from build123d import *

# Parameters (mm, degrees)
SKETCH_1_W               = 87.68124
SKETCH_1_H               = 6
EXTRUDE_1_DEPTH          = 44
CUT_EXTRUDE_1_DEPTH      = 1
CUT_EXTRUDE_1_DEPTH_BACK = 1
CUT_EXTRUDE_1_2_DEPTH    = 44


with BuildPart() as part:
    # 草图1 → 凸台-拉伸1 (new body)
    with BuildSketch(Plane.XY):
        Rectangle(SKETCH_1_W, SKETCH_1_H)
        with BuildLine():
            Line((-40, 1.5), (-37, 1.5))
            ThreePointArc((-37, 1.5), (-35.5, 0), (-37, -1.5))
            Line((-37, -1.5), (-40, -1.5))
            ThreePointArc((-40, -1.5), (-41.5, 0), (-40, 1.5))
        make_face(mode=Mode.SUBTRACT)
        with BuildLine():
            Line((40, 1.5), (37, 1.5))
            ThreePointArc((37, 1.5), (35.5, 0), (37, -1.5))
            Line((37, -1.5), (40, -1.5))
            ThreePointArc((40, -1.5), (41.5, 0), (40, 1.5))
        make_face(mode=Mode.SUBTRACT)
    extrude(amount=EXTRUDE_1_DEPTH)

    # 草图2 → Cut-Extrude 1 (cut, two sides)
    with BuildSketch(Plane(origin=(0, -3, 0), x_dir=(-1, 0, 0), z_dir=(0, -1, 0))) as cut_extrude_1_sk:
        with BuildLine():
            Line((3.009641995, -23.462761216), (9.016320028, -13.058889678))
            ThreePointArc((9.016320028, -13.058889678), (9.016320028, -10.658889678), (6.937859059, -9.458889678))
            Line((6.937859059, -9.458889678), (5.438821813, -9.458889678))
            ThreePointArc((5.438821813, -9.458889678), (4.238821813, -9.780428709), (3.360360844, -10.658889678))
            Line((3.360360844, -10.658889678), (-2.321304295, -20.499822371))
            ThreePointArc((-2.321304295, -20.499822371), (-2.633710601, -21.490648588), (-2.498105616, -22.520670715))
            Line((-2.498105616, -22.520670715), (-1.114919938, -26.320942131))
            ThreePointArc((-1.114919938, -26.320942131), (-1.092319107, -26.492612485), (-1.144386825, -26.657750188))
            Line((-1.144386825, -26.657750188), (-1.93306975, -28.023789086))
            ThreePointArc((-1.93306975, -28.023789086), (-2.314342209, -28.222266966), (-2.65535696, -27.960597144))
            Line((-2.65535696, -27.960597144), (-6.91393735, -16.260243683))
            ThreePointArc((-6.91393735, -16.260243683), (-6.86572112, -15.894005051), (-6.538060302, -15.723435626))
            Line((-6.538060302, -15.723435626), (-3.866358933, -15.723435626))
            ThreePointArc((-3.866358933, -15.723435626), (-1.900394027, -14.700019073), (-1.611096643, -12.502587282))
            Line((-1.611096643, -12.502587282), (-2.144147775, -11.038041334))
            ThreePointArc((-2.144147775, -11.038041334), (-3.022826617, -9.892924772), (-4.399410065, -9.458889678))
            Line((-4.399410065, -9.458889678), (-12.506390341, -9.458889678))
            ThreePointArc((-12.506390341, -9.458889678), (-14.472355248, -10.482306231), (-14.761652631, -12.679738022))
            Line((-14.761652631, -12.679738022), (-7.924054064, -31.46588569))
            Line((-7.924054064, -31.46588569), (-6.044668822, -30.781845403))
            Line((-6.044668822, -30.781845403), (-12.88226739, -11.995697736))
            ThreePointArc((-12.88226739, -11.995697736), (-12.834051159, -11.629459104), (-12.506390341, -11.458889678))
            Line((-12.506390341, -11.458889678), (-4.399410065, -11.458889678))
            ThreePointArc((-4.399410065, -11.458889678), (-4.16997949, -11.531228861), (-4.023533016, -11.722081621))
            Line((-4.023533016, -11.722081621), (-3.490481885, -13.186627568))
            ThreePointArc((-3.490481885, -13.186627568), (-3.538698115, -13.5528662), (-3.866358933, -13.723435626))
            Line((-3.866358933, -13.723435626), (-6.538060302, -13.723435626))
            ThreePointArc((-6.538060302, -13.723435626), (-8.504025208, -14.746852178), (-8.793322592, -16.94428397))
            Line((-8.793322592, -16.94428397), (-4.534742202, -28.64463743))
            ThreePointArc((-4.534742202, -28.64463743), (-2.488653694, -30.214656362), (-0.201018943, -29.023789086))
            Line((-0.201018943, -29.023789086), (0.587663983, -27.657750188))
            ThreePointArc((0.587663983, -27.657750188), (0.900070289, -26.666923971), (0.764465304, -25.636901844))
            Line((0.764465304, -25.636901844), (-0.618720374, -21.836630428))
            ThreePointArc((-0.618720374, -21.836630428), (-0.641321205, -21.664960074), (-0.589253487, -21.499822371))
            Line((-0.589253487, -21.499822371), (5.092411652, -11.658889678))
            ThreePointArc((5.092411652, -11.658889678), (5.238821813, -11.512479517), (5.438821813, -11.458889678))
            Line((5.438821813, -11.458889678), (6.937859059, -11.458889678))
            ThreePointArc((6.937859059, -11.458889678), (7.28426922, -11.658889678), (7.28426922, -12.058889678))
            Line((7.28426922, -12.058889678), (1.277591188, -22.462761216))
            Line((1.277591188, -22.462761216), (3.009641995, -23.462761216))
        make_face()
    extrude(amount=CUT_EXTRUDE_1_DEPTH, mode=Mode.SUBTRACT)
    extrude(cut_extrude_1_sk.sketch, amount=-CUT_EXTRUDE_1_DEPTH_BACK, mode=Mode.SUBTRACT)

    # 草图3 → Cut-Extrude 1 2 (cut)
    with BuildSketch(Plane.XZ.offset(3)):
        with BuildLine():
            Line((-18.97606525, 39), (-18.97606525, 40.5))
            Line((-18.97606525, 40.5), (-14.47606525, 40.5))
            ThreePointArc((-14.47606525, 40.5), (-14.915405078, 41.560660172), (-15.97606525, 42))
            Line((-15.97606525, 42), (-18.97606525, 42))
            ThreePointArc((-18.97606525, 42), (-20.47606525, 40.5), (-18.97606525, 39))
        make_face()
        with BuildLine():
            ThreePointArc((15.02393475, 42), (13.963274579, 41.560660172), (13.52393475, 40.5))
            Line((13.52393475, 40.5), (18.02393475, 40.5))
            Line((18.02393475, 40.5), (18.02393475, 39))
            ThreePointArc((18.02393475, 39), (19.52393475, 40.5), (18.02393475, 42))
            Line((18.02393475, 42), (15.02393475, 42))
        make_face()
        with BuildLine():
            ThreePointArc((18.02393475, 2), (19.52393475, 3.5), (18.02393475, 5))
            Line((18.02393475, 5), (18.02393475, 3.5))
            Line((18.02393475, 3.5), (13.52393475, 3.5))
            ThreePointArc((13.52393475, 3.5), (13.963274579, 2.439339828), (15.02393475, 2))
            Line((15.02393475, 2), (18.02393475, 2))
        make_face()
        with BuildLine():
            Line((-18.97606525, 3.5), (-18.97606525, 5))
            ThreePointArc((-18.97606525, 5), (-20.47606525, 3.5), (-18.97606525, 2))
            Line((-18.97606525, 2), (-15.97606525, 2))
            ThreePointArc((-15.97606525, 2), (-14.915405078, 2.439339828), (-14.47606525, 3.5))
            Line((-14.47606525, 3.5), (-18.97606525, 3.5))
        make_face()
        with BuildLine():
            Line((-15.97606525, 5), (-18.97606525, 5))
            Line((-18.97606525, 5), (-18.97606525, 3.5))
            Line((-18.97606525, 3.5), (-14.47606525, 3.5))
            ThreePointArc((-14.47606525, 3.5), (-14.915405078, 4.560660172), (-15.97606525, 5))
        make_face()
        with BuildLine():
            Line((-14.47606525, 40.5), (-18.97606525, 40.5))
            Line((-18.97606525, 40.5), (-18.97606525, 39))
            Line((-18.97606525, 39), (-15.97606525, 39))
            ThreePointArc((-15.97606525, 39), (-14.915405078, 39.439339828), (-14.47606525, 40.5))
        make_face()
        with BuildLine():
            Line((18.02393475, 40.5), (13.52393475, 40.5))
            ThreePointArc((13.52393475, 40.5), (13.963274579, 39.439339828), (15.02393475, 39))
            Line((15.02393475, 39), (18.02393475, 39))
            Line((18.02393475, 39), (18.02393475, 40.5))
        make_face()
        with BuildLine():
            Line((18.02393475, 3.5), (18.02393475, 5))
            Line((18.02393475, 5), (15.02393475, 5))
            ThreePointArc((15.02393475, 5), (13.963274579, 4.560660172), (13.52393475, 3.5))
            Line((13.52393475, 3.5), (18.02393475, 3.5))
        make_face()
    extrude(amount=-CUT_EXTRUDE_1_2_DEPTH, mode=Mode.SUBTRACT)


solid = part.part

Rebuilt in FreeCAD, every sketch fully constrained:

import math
import FreeCAD as App
import Part
import Sketcher
Q = App.Units.Quantity


def add_polygon(sketch, points):
    """Adds a closed chain of lines whose ends are joined by coincident constraints."""
    first, n = sketch.GeometryCount, len(points)
    for a, b in zip(points, points[1:] + points[:1]):
        sketch.addGeometry(Part.LineSegment(App.Vector(*a, 0), App.Vector(*b, 0)), False)
    for i in range(n):
        sketch.addConstraint(Sketcher.Constraint("Coincident", first + i, 2, first + (i + 1) % n, 1))

doc = App.newDocument("Part")
body = doc.addObject("PartDesign::Body", "Body")

# Sketch on XY plane
sketch1 = body.newObject("Sketcher::SketchObject", "Sketch")
sketch1.AttachmentSupport = (doc.getObject("XY_Plane"), [""])
sketch1.MapMode = "FlatFace"
add_polygon(sketch1, [(-43.84062, 3), (-43.84062, -3), (43.84062, -3), (43.84062, 3)])  # lines 0-3
sketch1.addGeometry(Part.ArcOfCircle(Part.Circle(App.Vector(-40, 0, 0), App.Vector(0, 0, 1), 1.5), math.radians(90), math.radians(270)), False)  # 4
sketch1.addGeometry(Part.LineSegment(App.Vector(-40, 1.5, 0), App.Vector(-37, 1.5, 0)), False)  # 5
sketch1.addGeometry(Part.ArcOfCircle(Part.Circle(App.Vector(-37, 0, 0), App.Vector(0, 0, 1), 1.5), math.radians(-90), math.radians(90)), False)  # 6
sketch1.addGeometry(Part.LineSegment(App.Vector(-37, -1.5, 0), App.Vector(-40, -1.5, 0)), False)  # 7
sketch1.addGeometry(Part.LineSegment(App.Vector(37, 1.5, 0), App.Vector(40, 1.5, 0)), False)  # 8
sketch1.addGeometry(Part.ArcOfCircle(Part.Circle(App.Vector(40, 0, 0), App.Vector(0, 0, 1), 1.5), math.radians(-90), math.radians(90)), False)  # 9
sketch1.addGeometry(Part.LineSegment(App.Vector(40, -1.5, 0), App.Vector(37, -1.5, 0)), False)  # 10
sketch1.addGeometry(Part.ArcOfCircle(Part.Circle(App.Vector(37, 0, 0), App.Vector(0, 0, 1), 1.5), math.radians(90), math.radians(270)), False)  # 11
sketch1.addConstraint([
    Sketcher.Constraint("Tangent", 4, 1, 5, 1),
    Sketcher.Constraint("Tangent", 5, 2, 6, 2),
    Sketcher.Constraint("Tangent", 6, 1, 7, 1),
    Sketcher.Constraint("Tangent", 7, 2, 4, 2),
    Sketcher.Constraint("Tangent", 8, 2, 9, 2),
    Sketcher.Constraint("Tangent", 9, 1, 10, 1),
    Sketcher.Constraint("Tangent", 10, 2, 11, 2),
    Sketcher.Constraint("Tangent", 11, 1, 8, 1),
    Sketcher.Constraint("Vertical", 0),
    Sketcher.Constraint("Horizontal", 1),
    Sketcher.Constraint("Vertical", 2),
    Sketcher.Constraint("Horizontal", 3),
    Sketcher.Constraint("Horizontal", 5),
    Sketcher.Constraint("Horizontal", 7),
    Sketcher.Constraint("Horizontal", 8),
    Sketcher.Constraint("Horizontal", 10),
    Sketcher.Constraint("Equal", 6, 9),
    Sketcher.Constraint("Symmetric", 4, 3, 9, 3, -1, 1),
    Sketcher.Constraint("Symmetric", 0, 2, 2, 2, -1, 1),
    Sketcher.Constraint("Symmetric", 6, 3, 11, 3, -2),
    Sketcher.Constraint("Radius", 4, Q("1.5 mm")),
    Sketcher.Constraint("DistanceX", 5, 1, 5, 2, Q("3 mm")),
    Sketcher.Constraint("DistanceY", 0, 2, 0, 1, Q("6 mm")),
    Sketcher.Constraint("DistanceX", 4, 3, -1, 1, Q("40 mm")),
    Sketcher.Constraint("DistanceX", 1, 1, 1, 2, Q("87.68124 mm")),
])
pad1 = body.newObject("PartDesign::Pad", "Pad")
pad1.Profile = sketch1
pad1.Length = 44

# Sketch on XZ plane
sketch2 = body.newObject("Sketcher::SketchObject", "Sketch001")
sketch2.AttachmentSupport = (doc.getObject("XZ_Plane"), [""])
sketch2.MapMode = "FlatFace"
sketch2.AttachmentOffset = App.Placement(App.Vector(0, 0, 3), App.Rotation())
sketch2.addGeometry([
    Part.LineSegment(App.Vector(-3.009642, 23.462761, 0), App.Vector(-9.01632, 13.05889, 0)),  # 0
    Part.ArcOfCircle(Part.Circle(App.Vector(-6.937859, 11.85889, 0), App.Vector(0, 0, 1), 2.4), math.radians(150), math.radians(270)),  # 1
    Part.LineSegment(App.Vector(-6.937859, 9.45889, 0), App.Vector(-5.438822, 9.45889, 0)),  # 2
    Part.ArcOfCircle(Part.Circle(App.Vector(-5.438822, 11.85889, 0), App.Vector(0, 0, 1), 2.4), math.radians(-90), math.radians(-30)),  # 3
    Part.LineSegment(App.Vector(-3.360361, 10.65889, 0), App.Vector(2.321304, 20.499822, 0)),  # 4
    Part.ArcOfCircle(Part.Circle(App.Vector(0.242843, 21.699822, 0), App.Vector(0, 0, 1), 2.4), math.radians(-30), math.radians(20)),  # 5
    Part.LineSegment(App.Vector(2.498106, 22.520671, 0), App.Vector(1.11492, 26.320942, 0)),  # 6
    Part.ArcOfCircle(Part.Circle(App.Vector(1.490797, 26.45775, 0), App.Vector(0, 0, 1), 0.4), math.radians(150), math.radians(200)),  # 7
    Part.LineSegment(App.Vector(1.144387, 26.65775, 0), App.Vector(1.93307, 28.023789, 0)),  # 8
    Part.ArcOfCircle(Part.Circle(App.Vector(2.27948, 27.823789, 0), App.Vector(0, 0, 1), 0.4), math.radians(20), math.radians(150)),  # 9
    Part.LineSegment(App.Vector(2.655357, 27.960597, 0), App.Vector(6.913937, 16.260244, 0)),  # 10
    Part.ArcOfCircle(Part.Circle(App.Vector(6.53806, 16.123436, 0), App.Vector(0, 0, 1), 0.4), math.radians(-90), math.radians(20)),  # 11
    Part.LineSegment(App.Vector(6.53806, 15.723436, 0), App.Vector(3.866359, 15.723436, 0)),  # 12
    Part.ArcOfCircle(Part.Circle(App.Vector(3.866359, 13.323436, 0), App.Vector(0, 0, 1), 2.4), math.radians(90), math.radians(200)),  # 13
    Part.LineSegment(App.Vector(1.611097, 12.502587, 0), App.Vector(2.144148, 11.038041, 0)),  # 14
    Part.ArcOfCircle(Part.Circle(App.Vector(4.39941, 11.85889, 0), App.Vector(0, 0, 1), 2.4), math.radians(-160), math.radians(-90)),  # 15
    Part.LineSegment(App.Vector(4.39941, 9.45889, 0), App.Vector(12.50639, 9.45889, 0)),  # 16
    Part.ArcOfCircle(Part.Circle(App.Vector(12.50639, 11.85889, 0), App.Vector(0, 0, 1), 2.4), math.radians(-90), math.radians(20)),  # 17
    Part.LineSegment(App.Vector(14.761653, 12.679738, 0), App.Vector(7.924054, 31.465886, 0)),  # 18
    Part.LineSegment(App.Vector(7.924054, 31.465886, 0), App.Vector(6.044669, 30.781845, 0)),  # 19
    Part.LineSegment(App.Vector(6.044669, 30.781845, 0), App.Vector(12.882267, 11.995698, 0)),  # 20
    Part.ArcOfCircle(Part.Circle(App.Vector(12.50639, 11.85889, 0), App.Vector(0, 0, 1), 0.4), math.radians(-90), math.radians(20)),  # 21
    Part.LineSegment(App.Vector(12.50639, 11.45889, 0), App.Vector(4.39941, 11.45889, 0)),  # 22
    Part.ArcOfCircle(Part.Circle(App.Vector(4.39941, 11.85889, 0), App.Vector(0, 0, 1), 0.4), math.radians(-160), math.radians(-90)),  # 23
    Part.LineSegment(App.Vector(4.023533, 11.722082, 0), App.Vector(3.490482, 13.186628, 0)),  # 24
    Part.ArcOfCircle(Part.Circle(App.Vector(3.866359, 13.323436, 0), App.Vector(0, 0, 1), 0.4), math.radians(90), math.radians(200)),  # 25
    Part.LineSegment(App.Vector(3.866359, 13.723436, 0), App.Vector(6.53806, 13.723436, 0)),  # 26
    Part.ArcOfCircle(Part.Circle(App.Vector(6.53806, 16.123436, 0), App.Vector(0, 0, 1), 2.4), math.radians(-90), math.radians(20)),  # 27
    Part.LineSegment(App.Vector(8.793323, 16.944284, 0), App.Vector(4.534742, 28.644637, 0)),  # 28
    Part.ArcOfCircle(Part.Circle(App.Vector(2.27948, 27.823789, 0), App.Vector(0, 0, 1), 2.4), math.radians(20), math.radians(150)),  # 29
    Part.LineSegment(App.Vector(0.201019, 29.023789, 0), App.Vector(-0.587664, 27.65775, 0)),  # 30
    Part.ArcOfCircle(Part.Circle(App.Vector(1.490797, 26.45775, 0), App.Vector(0, 0, 1), 2.4), math.radians(150), math.radians(200)),  # 31
    Part.LineSegment(App.Vector(-0.764465, 25.636902, 0), App.Vector(0.61872, 21.83663, 0)),  # 32
    Part.ArcOfCircle(Part.Circle(App.Vector(0.242843, 21.699822, 0), App.Vector(0, 0, 1), 0.4), math.radians(-30), math.radians(20)),  # 33
    Part.LineSegment(App.Vector(0.589253, 21.499822, 0), App.Vector(-5.092412, 11.65889, 0)),  # 34
    Part.ArcOfCircle(Part.Circle(App.Vector(-5.438822, 11.85889, 0), App.Vector(0, 0, 1), 0.4), math.radians(-90), math.radians(-30)),  # 35
    Part.LineSegment(App.Vector(-5.438822, 11.45889, 0), App.Vector(-6.937859, 11.45889, 0)),  # 36
    Part.ArcOfCircle(Part.Circle(App.Vector(-6.937859, 11.85889, 0), App.Vector(0, 0, 1), 0.4), math.radians(150), math.radians(270)),  # 37
    Part.LineSegment(App.Vector(-7.284269, 12.05889, 0), App.Vector(-1.277591, 22.462761, 0)),  # 38
    Part.LineSegment(App.Vector(-1.277591, 22.462761, 0), App.Vector(-3.009642, 23.462761, 0)),  # 39
], False)
sketch2.addConstraint([
    Sketcher.Constraint("Tangent", 0, 2, 1, 1),
    Sketcher.Constraint("Tangent", 1, 2, 2, 1),
    Sketcher.Constraint("Tangent", 2, 2, 3, 1),
    Sketcher.Constraint("Tangent", 3, 2, 4, 1),
    Sketcher.Constraint("Tangent", 4, 2, 5, 1),
    Sketcher.Constraint("Tangent", 5, 2, 6, 1),
    Sketcher.Constraint("Tangent", 6, 2, 7, 2),
    Sketcher.Constraint("Tangent", 7, 1, 8, 1),
    Sketcher.Constraint("Tangent", 8, 2, 9, 2),
    Sketcher.Constraint("Tangent", 9, 1, 10, 1),
    Sketcher.Constraint("Tangent", 10, 2, 11, 2),
    Sketcher.Constraint("Tangent", 11, 1, 12, 1),
    Sketcher.Constraint("Tangent", 12, 2, 13, 1),
    Sketcher.Constraint("Tangent", 13, 2, 14, 1),
    Sketcher.Constraint("Tangent", 14, 2, 15, 1),
    Sketcher.Constraint("Tangent", 15, 2, 16, 1),
    Sketcher.Constraint("Tangent", 16, 2, 17, 1),
    Sketcher.Constraint("Tangent", 17, 2, 18, 1),
    Sketcher.Constraint("Coincident", 18, 2, 19, 1),
    Sketcher.Constraint("Coincident", 19, 2, 20, 1),
    Sketcher.Constraint("Tangent", 20, 2, 21, 2),
    Sketcher.Constraint("Tangent", 21, 1, 22, 1),
    Sketcher.Constraint("Tangent", 22, 2, 23, 2),
    Sketcher.Constraint("Tangent", 23, 1, 24, 1),
    Sketcher.Constraint("Tangent", 24, 2, 25, 2),
    Sketcher.Constraint("Tangent", 25, 1, 26, 1),
    Sketcher.Constraint("Tangent", 26, 2, 27, 1),
    Sketcher.Constraint("Tangent", 27, 2, 28, 1),
    Sketcher.Constraint("Tangent", 28, 2, 29, 1),
    Sketcher.Constraint("Tangent", 29, 2, 30, 1),
    Sketcher.Constraint("Tangent", 30, 2, 31, 1),
    Sketcher.Constraint("Tangent", 31, 2, 32, 1),
    Sketcher.Constraint("Tangent", 32, 2, 33, 2),
    Sketcher.Constraint("Tangent", 33, 1, 34, 1),
    Sketcher.Constraint("Tangent", 34, 2, 35, 2),
    Sketcher.Constraint("Tangent", 35, 1, 36, 1),
    Sketcher.Constraint("Tangent", 36, 2, 37, 2),
    Sketcher.Constraint("Tangent", 37, 1, 38, 1),
    Sketcher.Constraint("Coincident", 38, 2, 39, 1),
    Sketcher.Constraint("Coincident", 39, 2, 0, 1),
    Sketcher.Constraint("Horizontal", 2),
    Sketcher.Constraint("Horizontal", 12),
    Sketcher.Constraint("Horizontal", 16),
    Sketcher.Constraint("Horizontal", 22),
    Sketcher.Constraint("Horizontal", 26),
    Sketcher.Constraint("Horizontal", 36),
    Sketcher.Constraint("Coincident", 21, 3, 17, 3),
    Sketcher.Constraint("Coincident", 23, 3, 15, 3),
    Sketcher.Constraint("Coincident", 25, 3, 13, 3),
    Sketcher.Constraint("Coincident", 27, 3, 11, 3),
    Sketcher.Constraint("Coincident", 29, 3, 9, 3),
    Sketcher.Constraint("Coincident", 31, 3, 7, 3),
    Sketcher.Constraint("Coincident", 33, 3, 5, 3),
    Sketcher.Constraint("Coincident", 35, 3, 3, 3),
    Sketcher.Constraint("Coincident", 37, 3, 1, 3),
    Sketcher.Constraint("Equal", 1, 3),
    Sketcher.Constraint("Equal", 3, 5),
    Sketcher.Constraint("Equal", 7, 9),
    Sketcher.Constraint("Equal", 9, 11),
    Sketcher.Constraint("Equal", 5, 13),
    Sketcher.Constraint("Equal", 13, 15),
    Sketcher.Constraint("Equal", 15, 17),
    Sketcher.Constraint("Equal", 11, 21),
    Sketcher.Constraint("Equal", 23, 25),
    Sketcher.Constraint("Equal", 27, 29),
    Sketcher.Constraint("Equal", 29, 31),
    Sketcher.Constraint("Equal", 25, 33),
    Sketcher.Constraint("Equal", 33, 35),
    Sketcher.Constraint("Parallel", 0, 4),
    Sketcher.Constraint("Parallel", 4, 8),
    Sketcher.Constraint("Parallel", 6, 10),
    Sketcher.Constraint("Parallel", 10, 14),
    Sketcher.Constraint("Parallel", 14, 18),
    Sketcher.Constraint("Perpendicular", 18, 19),
    Sketcher.Constraint("Perpendicular", 19, 20),
    Sketcher.Constraint("Parallel", 34, 38),
    Sketcher.Constraint("Perpendicular", 38, 39),
    Sketcher.Constraint("Horizontal", 3, 3, 15, 3),
    Sketcher.Constraint("Radius", 1, Q("2.4 mm")),
    Sketcher.Constraint("Radius", 7, Q("0.4 mm")),
    Sketcher.Constraint("Angle", 0, Q("-120 deg")),
    Sketcher.Constraint("Angle", 6, Q("110 deg")),
    Sketcher.Constraint("DistanceX", 12, 2, 12, 1, Q("2.671701 mm")),
    Sketcher.Constraint("Distance", 18, Q("19.991801 mm")),
    Sketcher.Constraint("DistanceX", 16, 1, 16, 2, Q("8.10698 mm")),
    Sketcher.Constraint("DistanceY", -1, 1, 31, 2, Q("25.636902 mm")),
    Sketcher.Constraint("DistanceX", 3, 3, 9, 3, Q("7.718302 mm")),
    Sketcher.Constraint("DistanceY", 3, 3, 9, 3, Q("15.964899 mm")),
    Sketcher.Constraint("DistanceX", 0, 2, 35, 3, Q("3.577498 mm")),
    Sketcher.Constraint("Distance", 4, Q("11.36333 mm")),
    Sketcher.Constraint("DistanceX", 1, 3, -1, 1, Q("6.937859 mm")),
    Sketcher.Constraint("DistanceX", -1, 1, 11, 3, Q("6.53806 mm")),
    Sketcher.Constraint("DistanceX", 38, 2, -1, 1, Q("1.277591 mm")),
])
pocket1 = body.newObject("PartDesign::Pocket", "Pocket")
pocket1.Profile = sketch2
pocket1.Type = "TwoLengths"
pocket1.Length = 1
pocket1.Length2 = 1
pocket1.Reversed = True

# Sketch on XZ plane
sketch3 = body.newObject("Sketcher::SketchObject", "Sketch002")
sketch3.AttachmentSupport = (doc.getObject("XZ_Plane"), [""])
sketch3.MapMode = "FlatFace"
sketch3.AttachmentOffset = App.Placement(App.Vector(0, 0, 3), App.Rotation())
sketch3.addGeometry([
    Part.ArcOfCircle(Part.Circle(App.Vector(-15.976065, 40.5, 0), App.Vector(0, 0, 1), 1.5), math.radians(0), math.radians(90)),  # 0
    Part.LineSegment(App.Vector(-15.976065, 42, 0), App.Vector(-18.976065, 42, 0)),  # 1
    Part.ArcOfCircle(Part.Circle(App.Vector(-18.976065, 40.5, 0), App.Vector(0, 0, 1), 1.5), math.radians(90), math.radians(270)),  # 2
    Part.LineSegment(App.Vector(-18.976065, 39, 0), App.Vector(-15.976065, 39, 0)),  # 3
    Part.ArcOfCircle(Part.Circle(App.Vector(-15.976065, 40.5, 0), App.Vector(0, 0, 1), 1.5), math.radians(-90), math.radians(0)),  # 4
    Part.ArcOfCircle(Part.Circle(App.Vector(15.023935, 40.5, 0), App.Vector(0, 0, 1), 1.5), math.radians(90), math.radians(180)),  # 5
    Part.ArcOfCircle(Part.Circle(App.Vector(15.023935, 40.5, 0), App.Vector(0, 0, 1), 1.5), math.radians(-180), math.radians(-90)),  # 6
    Part.LineSegment(App.Vector(15.023935, 39, 0), App.Vector(18.023935, 39, 0)),  # 7
    Part.ArcOfCircle(Part.Circle(App.Vector(18.023935, 40.5, 0), App.Vector(0, 0, 1), 1.5), math.radians(-90), math.radians(90)),  # 8
    Part.LineSegment(App.Vector(18.023935, 42, 0), App.Vector(15.023935, 42, 0)),  # 9
    Part.ArcOfCircle(Part.Circle(App.Vector(18.023935, 3.5, 0), App.Vector(0, 0, 1), 1.5), math.radians(-90), math.radians(90)),  # 10
    Part.LineSegment(App.Vector(18.023935, 5, 0), App.Vector(15.023935, 5, 0)),  # 11
    Part.ArcOfCircle(Part.Circle(App.Vector(15.023935, 3.5, 0), App.Vector(0, 0, 1), 1.5), math.radians(90), math.radians(180)),  # 12
    Part.ArcOfCircle(Part.Circle(App.Vector(15.023935, 3.5, 0), App.Vector(0, 0, 1), 1.5), math.radians(-180), math.radians(-90)),  # 13
    Part.LineSegment(App.Vector(15.023935, 2, 0), App.Vector(18.023935, 2, 0)),  # 14
    Part.ArcOfCircle(Part.Circle(App.Vector(-18.976065, 3.5, 0), App.Vector(0, 0, 1), 1.5), math.radians(90), math.radians(270)),  # 15
    Part.LineSegment(App.Vector(-18.976065, 2, 0), App.Vector(-15.976065, 2, 0)),  # 16
    Part.ArcOfCircle(Part.Circle(App.Vector(-15.976065, 3.5, 0), App.Vector(0, 0, 1), 1.5), math.radians(-90), math.radians(0)),  # 17
    Part.ArcOfCircle(Part.Circle(App.Vector(-15.976065, 3.5, 0), App.Vector(0, 0, 1), 1.5), math.radians(0), math.radians(90)),  # 18
    Part.LineSegment(App.Vector(-15.976065, 5, 0), App.Vector(-18.976065, 5, 0)),  # 19
], False)
sketch3.addConstraint([
    Sketcher.Constraint("Tangent", 0, 2, 1, 1),
    Sketcher.Constraint("Tangent", 1, 2, 2, 1),
    Sketcher.Constraint("Tangent", 2, 2, 3, 1),
    Sketcher.Constraint("Tangent", 3, 2, 4, 1),
    Sketcher.Constraint("Tangent", 4, 2, 0, 1),
    Sketcher.Constraint("Tangent", 5, 2, 6, 1),
    Sketcher.Constraint("Tangent", 6, 2, 7, 1),
    Sketcher.Constraint("Tangent", 7, 2, 8, 1),
    Sketcher.Constraint("Tangent", 8, 2, 9, 1),
    Sketcher.Constraint("Tangent", 9, 2, 5, 1),
    Sketcher.Constraint("Tangent", 10, 2, 11, 1),
    Sketcher.Constraint("Tangent", 11, 2, 12, 1),
    Sketcher.Constraint("Tangent", 12, 2, 13, 1),
    Sketcher.Constraint("Tangent", 13, 2, 14, 1),
    Sketcher.Constraint("Tangent", 14, 2, 10, 1),
    Sketcher.Constraint("Tangent", 15, 2, 16, 1),
    Sketcher.Constraint("Tangent", 16, 2, 17, 1),
    Sketcher.Constraint("Tangent", 17, 2, 18, 1),
    Sketcher.Constraint("Tangent", 18, 2, 19, 1),
    Sketcher.Constraint("Tangent", 19, 2, 15, 1),
    Sketcher.Constraint("Horizontal", 1),
    Sketcher.Constraint("Horizontal", 3),
    Sketcher.Constraint("Horizontal", 7),
    Sketcher.Constraint("Horizontal", 9),
    Sketcher.Constraint("Horizontal", 11),
    Sketcher.Constraint("Horizontal", 14),
    Sketcher.Constraint("Horizontal", 16),
    Sketcher.Constraint("Horizontal", 19),
    Sketcher.Constraint("Equal", 0, 2),
    Sketcher.Constraint("Equal", 4, 5),
    Sketcher.Constraint("Equal", 5, 6),
    Sketcher.Constraint("Equal", 8, 10),
    Sketcher.Constraint("Equal", 10, 12),
    Sketcher.Constraint("Equal", 13, 15),
    Sketcher.Constraint("Equal", 15, 17),
    Sketcher.Constraint("Horizontal", 4, 3, 5, 3),
    Sketcher.Constraint("Horizontal", 13, 3, 15, 3),
    Sketcher.Constraint("Horizontal", 8, 3, 4, 2),
    Sketcher.Constraint("Horizontal", 4, 2, 5, 2),
    Sketcher.Constraint("Horizontal", 18, 3, 12, 2),
    Sketcher.Constraint("Horizontal", 12, 2, 17, 2),
    Sketcher.Constraint("Vertical", 8, 3, 10, 3),
    Sketcher.Constraint("Vertical", 6, 3, 12, 3),
    Sketcher.Constraint("Vertical", 2, 3, 15, 3),
    Sketcher.Constraint("Vertical", 4, 3, 17, 3),
    Sketcher.Constraint("Equal", 3, 7),
    Sketcher.Constraint("Radius", 0, Q("1.5 mm")),
    Sketcher.Constraint("DistanceX", 1, 2, 1, 1, Q("3 mm")),
    Sketcher.Constraint("DistanceY", -1, 1, 0, 2, Q("42 mm")),
    Sketcher.Constraint("DistanceY", -1, 1, 10, 2, Q("5 mm")),
    Sketcher.Constraint("DistanceX", 0, 3, 5, 3, Q("31 mm")),
    Sketcher.Constraint("DistanceX", 0, 3, -1, 1, Q("15.976065 mm")),
])
pocket2 = body.newObject("PartDesign::Pocket", "Pocket001")
pocket2.Profile = sketch3
pocket2.Length = 44

doc.recompute()
